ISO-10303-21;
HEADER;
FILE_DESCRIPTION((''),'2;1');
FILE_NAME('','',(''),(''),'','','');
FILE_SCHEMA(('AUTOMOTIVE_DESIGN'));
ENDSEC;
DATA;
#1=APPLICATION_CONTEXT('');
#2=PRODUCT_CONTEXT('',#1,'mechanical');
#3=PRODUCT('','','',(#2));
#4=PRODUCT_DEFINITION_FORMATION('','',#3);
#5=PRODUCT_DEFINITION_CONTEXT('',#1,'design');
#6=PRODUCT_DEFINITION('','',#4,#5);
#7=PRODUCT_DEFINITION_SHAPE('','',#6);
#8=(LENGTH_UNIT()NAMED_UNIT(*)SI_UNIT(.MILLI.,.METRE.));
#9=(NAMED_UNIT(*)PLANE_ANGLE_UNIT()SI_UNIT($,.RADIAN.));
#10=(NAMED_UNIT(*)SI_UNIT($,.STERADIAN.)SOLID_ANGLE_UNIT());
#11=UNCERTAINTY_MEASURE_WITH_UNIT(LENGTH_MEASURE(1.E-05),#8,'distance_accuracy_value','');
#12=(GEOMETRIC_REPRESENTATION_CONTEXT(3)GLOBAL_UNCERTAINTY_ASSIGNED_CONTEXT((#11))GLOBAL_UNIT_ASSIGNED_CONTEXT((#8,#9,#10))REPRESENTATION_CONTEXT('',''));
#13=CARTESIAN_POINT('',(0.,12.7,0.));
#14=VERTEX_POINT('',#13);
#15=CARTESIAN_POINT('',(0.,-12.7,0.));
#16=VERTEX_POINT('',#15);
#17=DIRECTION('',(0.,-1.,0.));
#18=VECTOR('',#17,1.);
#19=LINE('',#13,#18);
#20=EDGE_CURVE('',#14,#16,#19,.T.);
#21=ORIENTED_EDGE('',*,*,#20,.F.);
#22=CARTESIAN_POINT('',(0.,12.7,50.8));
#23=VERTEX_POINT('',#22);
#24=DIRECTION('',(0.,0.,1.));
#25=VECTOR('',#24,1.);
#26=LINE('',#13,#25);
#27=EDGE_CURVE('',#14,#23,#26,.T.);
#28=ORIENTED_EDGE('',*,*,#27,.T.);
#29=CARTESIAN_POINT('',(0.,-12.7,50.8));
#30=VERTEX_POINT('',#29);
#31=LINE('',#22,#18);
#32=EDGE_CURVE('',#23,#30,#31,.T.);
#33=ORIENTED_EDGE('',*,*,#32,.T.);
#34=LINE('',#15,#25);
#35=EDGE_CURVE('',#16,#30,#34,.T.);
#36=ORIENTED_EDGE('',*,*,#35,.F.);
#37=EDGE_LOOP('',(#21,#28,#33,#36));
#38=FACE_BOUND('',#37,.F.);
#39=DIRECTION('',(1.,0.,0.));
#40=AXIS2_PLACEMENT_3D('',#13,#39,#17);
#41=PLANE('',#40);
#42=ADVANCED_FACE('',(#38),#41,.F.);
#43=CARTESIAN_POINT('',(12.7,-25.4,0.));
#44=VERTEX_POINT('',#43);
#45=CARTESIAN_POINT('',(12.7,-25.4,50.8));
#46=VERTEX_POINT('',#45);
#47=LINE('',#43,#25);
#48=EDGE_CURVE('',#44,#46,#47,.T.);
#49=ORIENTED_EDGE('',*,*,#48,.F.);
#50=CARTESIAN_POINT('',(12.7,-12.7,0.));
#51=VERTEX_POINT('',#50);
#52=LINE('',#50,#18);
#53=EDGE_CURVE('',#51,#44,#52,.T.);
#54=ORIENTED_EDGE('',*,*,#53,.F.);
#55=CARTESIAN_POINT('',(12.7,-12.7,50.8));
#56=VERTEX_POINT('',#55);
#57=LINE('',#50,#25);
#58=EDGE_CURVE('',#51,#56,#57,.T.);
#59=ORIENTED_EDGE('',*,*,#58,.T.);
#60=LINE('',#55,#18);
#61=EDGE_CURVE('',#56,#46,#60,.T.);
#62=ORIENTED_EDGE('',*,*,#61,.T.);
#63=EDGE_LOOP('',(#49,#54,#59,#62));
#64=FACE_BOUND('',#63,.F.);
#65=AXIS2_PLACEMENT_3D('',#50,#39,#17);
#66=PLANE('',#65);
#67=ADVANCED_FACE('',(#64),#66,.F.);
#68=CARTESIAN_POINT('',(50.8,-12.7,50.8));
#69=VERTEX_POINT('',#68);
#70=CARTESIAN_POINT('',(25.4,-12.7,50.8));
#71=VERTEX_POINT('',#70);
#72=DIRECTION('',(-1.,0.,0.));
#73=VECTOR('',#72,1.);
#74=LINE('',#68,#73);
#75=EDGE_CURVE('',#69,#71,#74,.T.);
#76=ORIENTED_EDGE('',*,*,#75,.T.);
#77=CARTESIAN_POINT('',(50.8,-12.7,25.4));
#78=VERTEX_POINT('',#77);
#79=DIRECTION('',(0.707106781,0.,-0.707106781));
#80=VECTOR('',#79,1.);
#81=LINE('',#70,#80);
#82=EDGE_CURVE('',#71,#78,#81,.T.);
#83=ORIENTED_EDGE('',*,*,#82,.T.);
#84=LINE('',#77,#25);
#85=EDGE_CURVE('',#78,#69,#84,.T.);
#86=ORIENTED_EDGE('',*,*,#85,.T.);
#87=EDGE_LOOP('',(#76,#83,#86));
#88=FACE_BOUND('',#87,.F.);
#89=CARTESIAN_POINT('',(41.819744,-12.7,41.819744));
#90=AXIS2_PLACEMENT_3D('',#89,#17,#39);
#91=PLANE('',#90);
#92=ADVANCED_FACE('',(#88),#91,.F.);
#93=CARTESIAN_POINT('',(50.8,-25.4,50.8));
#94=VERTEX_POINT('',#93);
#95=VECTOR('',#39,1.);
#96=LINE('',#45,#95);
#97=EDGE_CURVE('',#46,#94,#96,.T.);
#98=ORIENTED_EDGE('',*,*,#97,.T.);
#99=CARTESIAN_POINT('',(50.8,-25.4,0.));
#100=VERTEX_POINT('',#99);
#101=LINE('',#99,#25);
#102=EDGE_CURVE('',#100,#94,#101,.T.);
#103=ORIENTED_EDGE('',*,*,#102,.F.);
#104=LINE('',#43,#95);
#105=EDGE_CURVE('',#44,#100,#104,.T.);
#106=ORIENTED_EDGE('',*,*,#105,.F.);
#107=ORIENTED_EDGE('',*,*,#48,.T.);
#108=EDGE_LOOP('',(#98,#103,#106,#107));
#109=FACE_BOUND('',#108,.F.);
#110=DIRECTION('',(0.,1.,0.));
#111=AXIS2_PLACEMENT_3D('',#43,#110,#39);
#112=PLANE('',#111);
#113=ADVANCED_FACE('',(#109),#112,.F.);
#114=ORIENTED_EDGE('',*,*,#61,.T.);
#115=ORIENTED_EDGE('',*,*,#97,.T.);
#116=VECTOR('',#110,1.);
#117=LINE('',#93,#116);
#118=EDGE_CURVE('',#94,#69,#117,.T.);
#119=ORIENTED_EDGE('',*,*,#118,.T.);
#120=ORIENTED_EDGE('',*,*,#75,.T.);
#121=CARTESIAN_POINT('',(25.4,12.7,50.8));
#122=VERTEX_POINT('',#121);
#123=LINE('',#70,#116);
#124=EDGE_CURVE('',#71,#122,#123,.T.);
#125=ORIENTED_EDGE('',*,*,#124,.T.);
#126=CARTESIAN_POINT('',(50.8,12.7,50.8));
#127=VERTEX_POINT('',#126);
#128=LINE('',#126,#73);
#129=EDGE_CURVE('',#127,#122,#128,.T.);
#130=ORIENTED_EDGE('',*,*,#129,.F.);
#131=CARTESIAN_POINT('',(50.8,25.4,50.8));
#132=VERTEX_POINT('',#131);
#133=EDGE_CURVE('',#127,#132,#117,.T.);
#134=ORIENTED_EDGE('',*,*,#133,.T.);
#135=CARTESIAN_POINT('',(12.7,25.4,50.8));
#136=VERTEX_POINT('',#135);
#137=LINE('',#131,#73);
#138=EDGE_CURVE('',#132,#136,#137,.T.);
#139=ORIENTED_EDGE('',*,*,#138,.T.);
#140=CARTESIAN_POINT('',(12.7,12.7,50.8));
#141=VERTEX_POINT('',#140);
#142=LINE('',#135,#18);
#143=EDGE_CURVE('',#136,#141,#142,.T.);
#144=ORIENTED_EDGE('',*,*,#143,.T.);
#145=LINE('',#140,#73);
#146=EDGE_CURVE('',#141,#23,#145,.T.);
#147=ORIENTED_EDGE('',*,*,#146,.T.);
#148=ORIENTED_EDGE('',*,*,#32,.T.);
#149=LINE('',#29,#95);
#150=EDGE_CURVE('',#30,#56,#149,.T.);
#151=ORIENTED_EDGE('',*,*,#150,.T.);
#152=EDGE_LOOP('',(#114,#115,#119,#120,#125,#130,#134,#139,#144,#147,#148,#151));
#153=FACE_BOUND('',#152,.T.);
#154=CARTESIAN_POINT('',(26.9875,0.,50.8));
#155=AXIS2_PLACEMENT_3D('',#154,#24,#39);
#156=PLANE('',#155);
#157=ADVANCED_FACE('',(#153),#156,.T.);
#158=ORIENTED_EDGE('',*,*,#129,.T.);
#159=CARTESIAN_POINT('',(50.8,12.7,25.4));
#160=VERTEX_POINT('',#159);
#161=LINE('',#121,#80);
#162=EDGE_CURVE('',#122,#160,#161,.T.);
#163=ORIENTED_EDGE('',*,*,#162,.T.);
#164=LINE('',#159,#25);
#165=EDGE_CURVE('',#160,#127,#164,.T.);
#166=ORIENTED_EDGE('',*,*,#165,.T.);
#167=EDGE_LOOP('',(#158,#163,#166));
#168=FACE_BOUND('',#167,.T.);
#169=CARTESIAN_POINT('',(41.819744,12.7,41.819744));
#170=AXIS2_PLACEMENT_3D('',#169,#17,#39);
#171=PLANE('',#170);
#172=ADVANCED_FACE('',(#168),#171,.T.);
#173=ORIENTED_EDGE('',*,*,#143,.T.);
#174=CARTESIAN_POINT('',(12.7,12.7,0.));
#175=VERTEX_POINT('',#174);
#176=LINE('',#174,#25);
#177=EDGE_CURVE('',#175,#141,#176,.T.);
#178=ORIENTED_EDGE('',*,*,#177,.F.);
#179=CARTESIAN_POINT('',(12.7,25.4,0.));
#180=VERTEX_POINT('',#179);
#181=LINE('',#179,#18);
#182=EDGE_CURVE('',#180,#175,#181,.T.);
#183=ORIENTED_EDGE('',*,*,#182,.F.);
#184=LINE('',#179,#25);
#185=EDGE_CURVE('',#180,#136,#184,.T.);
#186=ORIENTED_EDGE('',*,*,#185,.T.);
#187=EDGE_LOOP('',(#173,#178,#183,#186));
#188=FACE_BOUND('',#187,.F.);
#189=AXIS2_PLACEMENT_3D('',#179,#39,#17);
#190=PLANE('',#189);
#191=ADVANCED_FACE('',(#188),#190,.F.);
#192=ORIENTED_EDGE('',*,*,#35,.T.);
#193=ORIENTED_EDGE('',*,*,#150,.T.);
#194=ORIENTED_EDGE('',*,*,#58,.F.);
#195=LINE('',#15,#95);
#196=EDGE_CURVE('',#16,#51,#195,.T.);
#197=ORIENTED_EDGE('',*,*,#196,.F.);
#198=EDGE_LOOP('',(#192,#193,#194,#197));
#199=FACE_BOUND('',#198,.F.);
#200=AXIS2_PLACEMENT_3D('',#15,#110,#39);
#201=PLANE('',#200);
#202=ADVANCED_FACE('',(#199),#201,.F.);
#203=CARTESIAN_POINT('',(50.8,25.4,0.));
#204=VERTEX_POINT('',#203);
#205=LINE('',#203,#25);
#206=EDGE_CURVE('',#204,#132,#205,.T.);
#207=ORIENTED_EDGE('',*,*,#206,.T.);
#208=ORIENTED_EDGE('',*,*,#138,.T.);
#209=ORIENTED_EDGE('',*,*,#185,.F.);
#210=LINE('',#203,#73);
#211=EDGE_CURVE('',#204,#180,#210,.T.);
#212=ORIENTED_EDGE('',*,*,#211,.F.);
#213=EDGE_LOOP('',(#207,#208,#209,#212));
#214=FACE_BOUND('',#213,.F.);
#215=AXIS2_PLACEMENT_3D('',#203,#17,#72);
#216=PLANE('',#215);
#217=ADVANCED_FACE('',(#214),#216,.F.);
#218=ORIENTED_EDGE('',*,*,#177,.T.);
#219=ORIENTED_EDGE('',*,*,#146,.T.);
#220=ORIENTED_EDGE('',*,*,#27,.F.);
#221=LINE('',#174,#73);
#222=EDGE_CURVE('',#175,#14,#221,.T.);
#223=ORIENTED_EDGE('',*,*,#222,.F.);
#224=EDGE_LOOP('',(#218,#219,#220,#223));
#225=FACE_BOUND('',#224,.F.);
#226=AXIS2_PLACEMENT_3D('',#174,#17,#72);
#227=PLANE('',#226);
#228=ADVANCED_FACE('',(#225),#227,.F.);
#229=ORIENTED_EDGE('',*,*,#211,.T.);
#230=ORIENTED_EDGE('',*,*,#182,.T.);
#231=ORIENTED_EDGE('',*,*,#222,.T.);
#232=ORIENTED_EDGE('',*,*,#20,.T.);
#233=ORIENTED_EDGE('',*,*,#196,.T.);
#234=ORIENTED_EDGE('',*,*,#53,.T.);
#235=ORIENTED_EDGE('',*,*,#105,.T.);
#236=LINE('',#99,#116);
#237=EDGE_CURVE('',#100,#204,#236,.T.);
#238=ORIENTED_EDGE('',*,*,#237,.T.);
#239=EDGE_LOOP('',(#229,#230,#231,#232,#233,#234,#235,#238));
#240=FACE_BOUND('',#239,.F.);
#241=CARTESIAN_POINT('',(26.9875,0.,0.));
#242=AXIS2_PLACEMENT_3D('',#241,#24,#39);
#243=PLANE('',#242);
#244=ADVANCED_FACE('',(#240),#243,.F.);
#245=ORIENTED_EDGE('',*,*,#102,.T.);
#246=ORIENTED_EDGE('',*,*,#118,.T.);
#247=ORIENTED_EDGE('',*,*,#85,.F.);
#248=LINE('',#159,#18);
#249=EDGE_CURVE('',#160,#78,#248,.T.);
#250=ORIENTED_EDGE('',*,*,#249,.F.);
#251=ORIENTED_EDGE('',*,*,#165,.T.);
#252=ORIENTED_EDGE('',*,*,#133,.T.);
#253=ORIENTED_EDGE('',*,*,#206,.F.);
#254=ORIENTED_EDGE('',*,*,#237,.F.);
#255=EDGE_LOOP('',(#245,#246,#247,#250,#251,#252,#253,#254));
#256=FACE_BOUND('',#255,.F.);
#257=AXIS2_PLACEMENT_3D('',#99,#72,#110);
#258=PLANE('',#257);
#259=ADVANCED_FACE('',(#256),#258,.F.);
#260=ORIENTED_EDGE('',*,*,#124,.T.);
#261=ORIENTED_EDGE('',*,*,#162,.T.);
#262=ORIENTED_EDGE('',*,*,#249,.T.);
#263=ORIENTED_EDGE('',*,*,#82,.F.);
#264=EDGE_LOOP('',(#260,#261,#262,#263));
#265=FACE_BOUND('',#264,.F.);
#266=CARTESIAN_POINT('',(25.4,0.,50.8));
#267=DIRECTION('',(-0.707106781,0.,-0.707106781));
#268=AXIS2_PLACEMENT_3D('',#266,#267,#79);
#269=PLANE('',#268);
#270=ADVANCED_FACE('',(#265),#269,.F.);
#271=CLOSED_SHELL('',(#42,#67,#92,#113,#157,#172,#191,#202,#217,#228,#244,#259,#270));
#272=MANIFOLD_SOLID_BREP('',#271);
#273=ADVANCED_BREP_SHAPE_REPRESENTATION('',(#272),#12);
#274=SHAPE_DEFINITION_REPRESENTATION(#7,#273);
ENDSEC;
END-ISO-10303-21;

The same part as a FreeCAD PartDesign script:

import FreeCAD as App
import Part
import Sketcher
from FreeCAD import Vector
Q = App.Units.Quantity

doc = App.newDocument("Part")
params = doc.addObject("Spreadsheet::Sheet", "Params")
for row, (alias, value) in enumerate([
    ("sketch1_height", "1 in"),
    ("sketch1_height2", "2 in"),
    ("sketch1_width", "1.5 in"),
    ("pad1_length", "2 in"),
    ("sketch2_width", "1 in"),
    ("pocket1_length", "0.5 in"),
    ("pocket1_length2", "0.5 in"),
], start=1):
    params.set(f"A{row}", alias)
    params.set(f"B{row}", "=" + value)
    params.setAlias(f"B{row}", alias)

body = doc.addObject("PartDesign::Body", "Body")

# Sketch on XY plane
sketch1 = doc.addObject("Sketcher::SketchObject", "Sketch")
body.addObject(sketch1)
sketch1.AttachmentSupport = (doc.XY_Plane, [""])
sketch1.MapMode = "FlatFace"
sketch1.addGeometry([
    Part.LineSegment(Vector(12.7, 12.7, 0), Vector(0, 12.7, 0)),  # 0
    Part.LineSegment(Vector(0, 12.7, 0), Vector(0, -12.7, 0)),  # 1
    Part.LineSegment(Vector(0, -12.7, 0), Vector(12.7, -12.7, 0)),  # 2
    Part.LineSegment(Vector(12.7, -12.7, 0), Vector(12.7, -25.4, 0)),  # 3
    Part.LineSegment(Vector(12.7, -25.4, 0), Vector(50.8, -25.4, 0)),  # 4
    Part.LineSegment(Vector(50.8, -25.4, 0), Vector(50.8, 25.4, 0)),  # 5
    Part.LineSegment(Vector(50.8, 25.4, 0), Vector(12.7, 25.4, 0)),  # 6
    Part.LineSegment(Vector(12.7, 25.4, 0), Vector(12.7, 12.7, 0)),  # 7
], False)
sketch1.addConstraint([
    Sketcher.Constraint("Coincident", 0, 2, 1, 1),
    Sketcher.Constraint("Coincident", 1, 2, 2, 1),
    Sketcher.Constraint("Coincident", 2, 2, 3, 1),
    Sketcher.Constraint("Coincident", 3, 2, 4, 1),
    Sketcher.Constraint("Coincident", 4, 2, 5, 1),
    Sketcher.Constraint("Coincident", 5, 2, 6, 1),
    Sketcher.Constraint("Coincident", 6, 2, 7, 1),
    Sketcher.Constraint("Coincident", 7, 2, 0, 1),
    Sketcher.Constraint("Horizontal", 0),
    Sketcher.Constraint("Vertical", 1),
    Sketcher.Constraint("Horizontal", 2),
    Sketcher.Constraint("Vertical", 3),
    Sketcher.Constraint("Horizontal", 4),
    Sketcher.Constraint("Vertical", 5),
    Sketcher.Constraint("Horizontal", 6),
    Sketcher.Constraint("Vertical", 7),
    Sketcher.Constraint("Symmetric", 0, 2, 1, 2, -1, 1),
    Sketcher.Constraint("Symmetric", 3, 2, 6, 2, -1),
    Sketcher.Constraint("Equal", 2, 3),
    Sketcher.Constraint("DistanceY", 1, 2, 1, 1, Q("1 in")),
    Sketcher.Constraint("DistanceY", 5, 1, 5, 2, Q("2 in")),
    Sketcher.Constraint("DistanceX", 4, 1, 4, 2, Q("1.5 in")),
])
sketch1.setExpression("Constraints[19]", "Params.sketch1_height")
sketch1.setExpression("Constraints[20]", "Params.sketch1_height2")
sketch1.setExpression("Constraints[21]", "Params.sketch1_width")
pad1 = doc.addObject("PartDesign::Pad", "Pad")
body.addObject(pad1)
pad1.Profile = sketch1
pad1.setExpression("Length", "Params.pad1_length")

# Sketch on XZ plane
sketch2 = doc.addObject("Sketcher::SketchObject", "Sketch001")
body.addObject(sketch2)
sketch2.AttachmentSupport = (doc.XZ_Plane, [""])
sketch2.MapMode = "FlatFace"
sketch2.addGeometry([
    Part.LineSegment(Vector(50.8, 50.8, 0), Vector(25.4, 50.8, 0)),
    Part.LineSegment(Vector(25.4, 50.8, 0), Vector(50.8, 25.4, 0)),
    Part.LineSegment(Vector(50.8, 25.4, 0), Vector(50.8, 50.8, 0)),
], False)
sketch2.addConstraint([
    Sketcher.Constraint("Coincident", 0, 2, 1, 1),
    Sketcher.Constraint("Coincident", 1, 2, 2, 1),
    Sketcher.Constraint("Coincident", 2, 2, 0, 1),
    Sketcher.Constraint("Horizontal", 0),
    Sketcher.Constraint("Vertical", 2),
    Sketcher.Constraint("Equal", 0, 2),
    Sketcher.Constraint("DistanceX", 0, 2, 0, 1, Q("1 in")),
    Sketcher.Constraint("DistanceX", -1, 1, 0, 2, Q("1 in")),
    Sketcher.Constraint("DistanceY", -1, 1, 0, 2, Q("2 in")),
])
sketch2.setExpression("Constraints[6]", "Params.sketch2_width")
pocket1 = doc.addObject("PartDesign::Pocket", "Pocket")
body.addObject(pocket1)
pocket1.Profile = sketch2
pocket1.Type = "TwoLengths"
pocket1.setExpression("Length", "Params.pocket1_length")
pocket1.setExpression("Length2", "Params.pocket1_length2")

doc.recompute()
